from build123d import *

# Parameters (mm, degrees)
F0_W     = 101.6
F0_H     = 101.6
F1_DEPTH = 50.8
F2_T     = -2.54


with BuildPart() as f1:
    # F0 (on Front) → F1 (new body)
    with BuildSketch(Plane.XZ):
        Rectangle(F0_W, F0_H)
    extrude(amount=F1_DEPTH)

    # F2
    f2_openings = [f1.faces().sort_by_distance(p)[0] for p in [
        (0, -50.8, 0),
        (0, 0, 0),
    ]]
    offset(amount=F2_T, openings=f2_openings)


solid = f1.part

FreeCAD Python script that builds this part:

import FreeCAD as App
import Part
import Sketcher
Q = App.Units.Quantity


def faces_at(feature, points):
    """Names of the faces that lie closest to the given points."""
    faces = feature.Shape.Faces
    near = lambda p: min(range(len(faces)), key=lambda i: faces[i].distToShape(Part.Vertex(*p))[0])
    return sorted({f"Face{near(p) + 1}" for p in points})


def add_polygon(sketch, points):
    """Adds a closed chain of lines whose ends are joined by coincident constraints."""
    first, n = sketch.GeometryCount, len(points)
    for a, b in zip(points, points[1:] + points[:1]):
        sketch.addGeometry(Part.LineSegment(App.Vector(*a, 0), App.Vector(*b, 0)), False)
    for i in range(n):
        sketch.addConstraint(Sketcher.Constraint("Coincident", first + i, 2, first + (i + 1) % n, 1))

doc = App.newDocument("Part")
params = doc.addObject("Spreadsheet::Sheet", "Params")
for row, (alias, value) in enumerate([
    ("sketch1_width", "4 in"),
    ("pad1_length", "2 in"),
    ("thickness_wall", "0.1 in"),
], start=1):
    params.set(f"A{row}", alias)
    params.set(f"B{row}", "=" + value)
    params.setAlias(f"B{row}", alias)

body = doc.addObject("PartDesign::Body", "Body")

sketch1 = body.newObject("Sketcher::SketchObject", "Sketch")
sketch1.AttachmentSupport = (doc.getObject("XZ_Plane"), [""])
sketch1.MapMode = "FlatFace"
add_polygon(sketch1, [(-51, 51), (-51, -51), (51, -51), (51, 51)])
sketch1.addConstraint(Sketcher.Constraint("Vertical", 0))
sketch1.addConstraint(Sketcher.Constraint("Horizontal", 1))
sketch1.addConstraint(Sketcher.Constraint("Vertical", 2))
sketch1.addConstraint(Sketcher.Constraint("Horizontal", 3))
sketch1.addConstraint(Sketcher.Constraint("Symmetric", 0, 2, 2, 2, -1, 1))
sketch1.addConstraint(Sketcher.Constraint("Equal", 3, 0))
sketch1.addConstraint(Sketcher.Constraint("DistanceX", 1, 1, 1, 2, Q("4 in")))
sketch1.setExpression("Constraints[10]", "Params.sketch1_width")
pad1 = body.newObject("PartDesign::Pad", "Pad")
pad1.Profile = sketch1
pad1.setExpression("Length", "Params.pad1_length")
doc.recompute()

thickness = body.newObject("PartDesign::Thickness", "Thickness")
thickness.Base = (pad1, faces_at(pad1, [(0, -50.8, 0), (0, 0, 0)]))
thickness.setExpression("Value", "Params.thickness_wall")
thickness.Reversed = True
thickness.Join = "Arc"

doc.recompute()
